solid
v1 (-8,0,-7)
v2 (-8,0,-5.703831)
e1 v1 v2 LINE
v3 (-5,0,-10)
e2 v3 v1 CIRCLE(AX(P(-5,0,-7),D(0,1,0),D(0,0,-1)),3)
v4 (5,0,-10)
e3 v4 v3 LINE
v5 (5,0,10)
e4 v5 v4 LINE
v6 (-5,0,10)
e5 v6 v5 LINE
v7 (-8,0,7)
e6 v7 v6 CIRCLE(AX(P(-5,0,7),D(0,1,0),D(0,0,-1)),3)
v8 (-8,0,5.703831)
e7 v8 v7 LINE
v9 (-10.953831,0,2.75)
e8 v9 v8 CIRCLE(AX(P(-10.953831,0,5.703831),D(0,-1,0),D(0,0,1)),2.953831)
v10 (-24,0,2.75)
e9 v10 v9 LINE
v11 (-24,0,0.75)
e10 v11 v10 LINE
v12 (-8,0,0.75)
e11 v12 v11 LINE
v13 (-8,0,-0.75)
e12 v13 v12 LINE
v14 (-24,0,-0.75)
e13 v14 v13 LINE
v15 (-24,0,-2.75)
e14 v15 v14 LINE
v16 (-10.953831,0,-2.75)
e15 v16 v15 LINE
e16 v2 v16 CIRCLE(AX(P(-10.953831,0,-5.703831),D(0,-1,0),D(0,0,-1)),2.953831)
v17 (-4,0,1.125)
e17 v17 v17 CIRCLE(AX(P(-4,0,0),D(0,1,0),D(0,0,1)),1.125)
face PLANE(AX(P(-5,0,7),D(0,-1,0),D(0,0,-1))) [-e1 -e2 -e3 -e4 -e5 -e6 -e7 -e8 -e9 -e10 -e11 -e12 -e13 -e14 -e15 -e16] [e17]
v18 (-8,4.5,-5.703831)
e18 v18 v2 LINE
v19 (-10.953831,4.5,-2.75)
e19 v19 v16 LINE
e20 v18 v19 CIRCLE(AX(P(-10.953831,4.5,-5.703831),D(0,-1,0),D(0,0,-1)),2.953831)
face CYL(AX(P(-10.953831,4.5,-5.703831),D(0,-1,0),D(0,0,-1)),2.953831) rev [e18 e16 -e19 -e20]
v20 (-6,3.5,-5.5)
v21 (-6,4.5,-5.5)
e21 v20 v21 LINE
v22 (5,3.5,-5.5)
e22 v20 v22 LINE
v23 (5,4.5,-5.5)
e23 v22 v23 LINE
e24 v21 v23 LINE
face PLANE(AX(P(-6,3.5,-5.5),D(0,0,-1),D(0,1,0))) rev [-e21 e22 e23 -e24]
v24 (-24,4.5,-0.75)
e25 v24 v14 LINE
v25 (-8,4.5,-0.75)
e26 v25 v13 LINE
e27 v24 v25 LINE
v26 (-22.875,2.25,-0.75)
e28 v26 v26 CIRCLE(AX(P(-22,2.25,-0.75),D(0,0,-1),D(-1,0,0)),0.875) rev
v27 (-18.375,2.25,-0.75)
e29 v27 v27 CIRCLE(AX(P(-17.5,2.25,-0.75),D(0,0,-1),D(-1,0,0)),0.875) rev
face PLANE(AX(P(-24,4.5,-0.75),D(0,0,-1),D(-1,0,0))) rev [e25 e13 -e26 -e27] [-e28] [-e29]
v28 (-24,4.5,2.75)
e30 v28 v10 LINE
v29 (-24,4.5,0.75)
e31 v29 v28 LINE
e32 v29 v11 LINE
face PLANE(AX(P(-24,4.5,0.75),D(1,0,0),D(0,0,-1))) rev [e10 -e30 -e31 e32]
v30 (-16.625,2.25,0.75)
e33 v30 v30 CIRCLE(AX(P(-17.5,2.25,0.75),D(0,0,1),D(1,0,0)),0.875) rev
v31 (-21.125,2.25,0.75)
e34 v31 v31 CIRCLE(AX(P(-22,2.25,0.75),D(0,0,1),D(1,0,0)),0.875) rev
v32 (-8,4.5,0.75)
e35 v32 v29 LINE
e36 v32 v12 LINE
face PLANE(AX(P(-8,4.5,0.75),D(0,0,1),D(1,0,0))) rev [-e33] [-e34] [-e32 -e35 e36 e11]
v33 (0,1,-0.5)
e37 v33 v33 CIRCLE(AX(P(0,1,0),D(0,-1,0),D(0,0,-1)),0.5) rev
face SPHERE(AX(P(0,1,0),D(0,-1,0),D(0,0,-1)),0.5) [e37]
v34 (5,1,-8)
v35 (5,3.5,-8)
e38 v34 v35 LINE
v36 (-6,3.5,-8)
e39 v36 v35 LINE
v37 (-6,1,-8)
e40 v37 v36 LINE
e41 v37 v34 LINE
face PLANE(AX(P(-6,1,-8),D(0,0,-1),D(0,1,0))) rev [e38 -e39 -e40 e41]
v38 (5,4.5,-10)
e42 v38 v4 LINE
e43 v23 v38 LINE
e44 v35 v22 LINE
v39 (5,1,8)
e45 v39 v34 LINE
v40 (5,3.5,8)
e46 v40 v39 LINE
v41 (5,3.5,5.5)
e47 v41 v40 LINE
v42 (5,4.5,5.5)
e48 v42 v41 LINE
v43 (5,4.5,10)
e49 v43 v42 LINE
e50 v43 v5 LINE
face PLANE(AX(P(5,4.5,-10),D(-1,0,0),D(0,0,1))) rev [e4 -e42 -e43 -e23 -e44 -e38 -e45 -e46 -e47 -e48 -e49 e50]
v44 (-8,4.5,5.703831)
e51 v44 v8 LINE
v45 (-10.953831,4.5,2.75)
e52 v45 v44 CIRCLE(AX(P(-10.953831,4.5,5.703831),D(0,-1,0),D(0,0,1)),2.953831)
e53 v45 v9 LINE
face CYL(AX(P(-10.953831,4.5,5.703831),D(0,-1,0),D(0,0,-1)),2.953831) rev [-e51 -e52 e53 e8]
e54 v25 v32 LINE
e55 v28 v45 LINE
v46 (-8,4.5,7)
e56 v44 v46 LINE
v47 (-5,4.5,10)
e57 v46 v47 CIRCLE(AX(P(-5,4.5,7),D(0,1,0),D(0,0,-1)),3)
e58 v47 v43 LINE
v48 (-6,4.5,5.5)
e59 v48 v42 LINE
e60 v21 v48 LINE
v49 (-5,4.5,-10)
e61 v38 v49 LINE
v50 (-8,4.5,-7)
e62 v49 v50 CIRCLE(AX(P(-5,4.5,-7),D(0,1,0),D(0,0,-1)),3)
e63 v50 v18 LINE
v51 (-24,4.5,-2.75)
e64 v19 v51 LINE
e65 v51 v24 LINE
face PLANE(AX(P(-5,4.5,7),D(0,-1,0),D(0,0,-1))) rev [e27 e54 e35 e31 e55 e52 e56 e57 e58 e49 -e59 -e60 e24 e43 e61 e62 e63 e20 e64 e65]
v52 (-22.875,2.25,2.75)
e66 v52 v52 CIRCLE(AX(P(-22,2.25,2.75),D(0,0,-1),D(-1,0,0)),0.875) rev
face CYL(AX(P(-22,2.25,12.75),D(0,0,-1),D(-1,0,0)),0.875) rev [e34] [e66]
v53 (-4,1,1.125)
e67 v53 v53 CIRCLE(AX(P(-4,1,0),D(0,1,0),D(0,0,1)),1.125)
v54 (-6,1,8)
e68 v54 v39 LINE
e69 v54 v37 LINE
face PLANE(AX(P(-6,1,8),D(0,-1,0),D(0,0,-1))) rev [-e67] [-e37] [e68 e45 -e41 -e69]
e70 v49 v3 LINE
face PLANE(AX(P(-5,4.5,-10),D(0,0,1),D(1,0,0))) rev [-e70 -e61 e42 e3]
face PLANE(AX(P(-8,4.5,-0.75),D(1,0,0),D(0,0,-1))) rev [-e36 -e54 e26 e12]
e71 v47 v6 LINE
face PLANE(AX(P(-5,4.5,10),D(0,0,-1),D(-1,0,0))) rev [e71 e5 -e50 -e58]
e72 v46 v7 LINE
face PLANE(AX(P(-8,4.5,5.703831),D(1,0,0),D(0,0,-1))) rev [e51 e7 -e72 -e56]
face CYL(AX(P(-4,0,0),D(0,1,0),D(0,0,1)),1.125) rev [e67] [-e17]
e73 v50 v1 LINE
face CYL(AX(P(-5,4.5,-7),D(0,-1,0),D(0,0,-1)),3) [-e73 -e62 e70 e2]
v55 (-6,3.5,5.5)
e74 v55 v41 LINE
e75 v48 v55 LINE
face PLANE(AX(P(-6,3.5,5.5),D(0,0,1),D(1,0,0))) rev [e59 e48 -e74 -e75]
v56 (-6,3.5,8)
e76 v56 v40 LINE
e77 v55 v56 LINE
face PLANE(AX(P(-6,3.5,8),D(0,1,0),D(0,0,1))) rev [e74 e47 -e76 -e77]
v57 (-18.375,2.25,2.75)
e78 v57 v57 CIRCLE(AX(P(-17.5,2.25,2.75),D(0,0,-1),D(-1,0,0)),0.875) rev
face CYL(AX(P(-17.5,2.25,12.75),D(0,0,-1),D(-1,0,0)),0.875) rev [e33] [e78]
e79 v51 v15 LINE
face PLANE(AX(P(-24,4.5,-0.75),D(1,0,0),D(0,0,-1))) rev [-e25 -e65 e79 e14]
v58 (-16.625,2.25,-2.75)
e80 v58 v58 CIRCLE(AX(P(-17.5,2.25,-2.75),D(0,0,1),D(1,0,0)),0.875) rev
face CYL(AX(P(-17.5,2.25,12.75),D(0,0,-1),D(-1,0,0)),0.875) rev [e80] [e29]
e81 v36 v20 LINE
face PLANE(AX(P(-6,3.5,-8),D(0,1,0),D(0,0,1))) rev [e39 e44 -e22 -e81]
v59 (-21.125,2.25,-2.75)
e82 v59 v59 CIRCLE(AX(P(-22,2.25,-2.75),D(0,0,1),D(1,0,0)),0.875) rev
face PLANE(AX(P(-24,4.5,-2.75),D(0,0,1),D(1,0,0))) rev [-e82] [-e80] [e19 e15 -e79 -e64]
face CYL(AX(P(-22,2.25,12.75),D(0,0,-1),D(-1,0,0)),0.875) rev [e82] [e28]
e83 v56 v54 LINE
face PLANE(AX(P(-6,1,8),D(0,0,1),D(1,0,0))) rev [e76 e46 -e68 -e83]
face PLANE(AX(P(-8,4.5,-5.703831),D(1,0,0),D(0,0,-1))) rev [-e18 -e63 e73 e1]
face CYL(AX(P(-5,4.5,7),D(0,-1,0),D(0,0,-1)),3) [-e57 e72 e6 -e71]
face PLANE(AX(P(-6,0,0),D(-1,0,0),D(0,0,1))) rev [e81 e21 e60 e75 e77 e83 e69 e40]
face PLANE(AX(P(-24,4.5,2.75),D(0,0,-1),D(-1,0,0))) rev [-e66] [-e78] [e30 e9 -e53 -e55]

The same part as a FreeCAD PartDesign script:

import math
import FreeCAD as App
import Part
import Sketcher

V = App.Vector
Q = App.Units.Quantity

doc = App.newDocument("Part")
body = doc.addObject("PartDesign::Body", "Body")

# Sketch on XZ plane
sketch1 = body.newObject("Sketcher::SketchObject", "Sketch")
sketch1.AttachmentSupport = (doc.getObject("XZ_Plane"), [""])
sketch1.MapMode = "FlatFace"
sketch1.addGeometry(Part.LineSegment(V(-5, 10, 0), V(5, 10, 0)), False)
sketch1.addGeometry(Part.LineSegment(V(5, 10, 0), V(5, -10, 0)), False)
sketch1.addGeometry(Part.LineSegment(V(5, -10, 0), V(-5, -10, 0)), False)
sketch1.addGeometry(Part.ArcOfCircle(Part.Circle(V(-5, -7, 0), V(0, 0, 1), 3), math.radians(180), math.radians(270)), False)
sketch1.addGeometry(Part.LineSegment(V(-8, -7, 0), V(-8, -5.7, 0)), False)
sketch1.addGeometry(Part.ArcOfCircle(Part.Circle(V(-11, -5.7, 0), V(0, 0, 1), 3), math.radians(0), math.radians(90)), False)
sketch1.addGeometry(Part.LineSegment(V(-11, -2.8, 0), V(-24, -2.8, 0)), False)
sketch1.addGeometry(Part.LineSegment(V(-24, -2.8, 0), V(-24, -0.8, 0)), False)
sketch1.addGeometry(Part.LineSegment(V(-24, -0.8, 0), V(-8, -0.8, 0)), False)
sketch1.addGeometry(Part.LineSegment(V(-8, -0.8, 0), V(-8, 0.8, 0)), False)
sketch1.addGeometry(Part.LineSegment(V(-8, 0.8, 0), V(-24, 0.8, 0)), False)
sketch1.addGeometry(Part.LineSegment(V(-24, 0.8, 0), V(-24, 2.8, 0)), False)
sketch1.addGeometry(Part.LineSegment(V(-24, 2.8, 0), V(-11, 2.8, 0)), False)
sketch1.addGeometry(Part.ArcOfCircle(Part.Circle(V(-11, 5.7, 0), V(0, 0, 1), 3), math.radians(-90), math.radians(0)), False)
sketch1.addGeometry(Part.LineSegment(V(-8, 5.7, 0), V(-8, 7, 0)), False)
sketch1.addGeometry(Part.ArcOfCircle(Part.Circle(V(-5, 7, 0), V(0, 0, 1), 3), math.radians(90), math.radians(180)), False)
sketch1.addConstraint(Sketcher.Constraint("Coincident", 0, 2, 1, 1))
sketch1.addConstraint(Sketcher.Constraint("Coincident", 1, 2, 2, 1))
sketch1.addConstraint(Sketcher.Constraint("Tangent", 2, 2, 3, 2))
sketch1.addConstraint(Sketcher.Constraint("Tangent", 3, 1, 4, 1))
sketch1.addConstraint(Sketcher.Constraint("Tangent", 4, 2, 5, 1))
sketch1.addConstraint(Sketcher.Constraint("Tangent", 5, 2, 6, 1))
sketch1.addConstraint(Sketcher.Constraint("Coincident", 6, 2, 7, 1))
sketch1.addConstraint(Sketcher.Constraint("Coincident", 7, 2, 8, 1))
sketch1.addConstraint(Sketcher.Constraint("Coincident", 8, 2, 9, 1))
sketch1.addConstraint(Sketcher.Constraint("Coincident", 9, 2, 10, 1))
sketch1.addConstraint(Sketcher.Constraint("Coincident", 10, 2, 11, 1))
sketch1.addConstraint(Sketcher.Constraint("Coincident", 11, 2, 12, 1))
sketch1.addConstraint(Sketcher.Constraint("Tangent", 12, 2, 13, 1))
sketch1.addConstraint(Sketcher.Constraint("Tangent", 13, 2, 14, 1))
sketch1.addConstraint(Sketcher.Constraint("Tangent", 14, 2, 15, 2))
sketch1.addConstraint(Sketcher.Constraint("Tangent", 15, 1, 0, 1))
sketch1.addConstraint(Sketcher.Constraint("Horizontal", 0))
sketch1.addConstraint(Sketcher.Constraint("Vertical", 1))
sketch1.addConstraint(Sketcher.Constraint("Horizontal", 2))
sketch1.addConstraint(Sketcher.Constraint("Vertical", 4))
sketch1.addConstraint(Sketcher.Constraint("Horizontal", 6))
sketch1.addConstraint(Sketcher.Constraint("Vertical", 7))
sketch1.addConstraint(Sketcher.Constraint("Horizontal", 8))
sketch1.addConstraint(Sketcher.Constraint("Vertical", 9))
sketch1.addConstraint(Sketcher.Constraint("Horizontal", 10))
sketch1.addConstraint(Sketcher.Constraint("Vertical", 11))
sketch1.addConstraint(Sketcher.Constraint("Horizontal", 12))
sketch1.addConstraint(Sketcher.Constraint("Vertical", 14))
sketch1.addConstraint(Sketcher.Constraint("Equal", 5, 13))
sketch1.addConstraint(Sketcher.Constraint("Equal", 3, 15))
sketch1.addConstraint(Sketcher.Constraint("Symmetric", 0, 2, 2, 2, -1, 1))
sketch1.addConstraint(Sketcher.Constraint("Symmetric", 5, 3, 13, 3, -1))
sketch1.addConstraint(Sketcher.Constraint("Symmetric", 7, 2, 10, 2, -1))
sketch1.addConstraint(Sketcher.Constraint("Vertical", 4, 2, 8, 2))
sketch1.addConstraint(Sketcher.Constraint("Radius", 3, Q("3 mm")))
sketch1.addConstraint(Sketcher.Constraint("DistanceX", 0, 1, 0, 2, Q("10 mm")))
sketch1.addConstraint(Sketcher.Constraint("DistanceX", 8, 1, 8, 2, Q("16 mm")))
sketch1.addConstraint(Sketcher.Constraint("DistanceY", 1, 2, 1, 1, Q("20 mm")))
sketch1.addConstraint(Sketcher.Constraint("DistanceY", 7, 1, 7, 2, Q("2 mm")))
sketch1.addConstraint(Sketcher.Constraint("DistanceY", 9, 1, 9, 2, Q("1.5 mm")))
sketch1.addConstraint(Sketcher.Constraint("Radius", 5, Q("2.953831 mm")))
pad1 = body.newObject("PartDesign::Pad", "Pad")
pad1.Profile = sketch1
pad1.Length = 4.5
pad1.Reversed = True

# Sketch on XY plane
sketch2 = body.newObject("Sketcher::SketchObject", "Sketch001")
sketch2.AttachmentSupport = (doc.getObject("XY_Plane"), [""])
sketch2.MapMode = "FlatFace"
sketch2.AttachmentOffset = App.Placement(V(0, 0, 2.75), App.Rotation())
sketch2.addGeometry(Part.Circle(V(-22, 2.2, 0), V(0, 0, 1), 0.9), False)
sketch2.addGeometry(Part.Circle(V(-17.5, 2.2, 0), V(0, 0, 1), 0.9), False)
sketch2.addConstraint(Sketcher.Constraint("Equal", 0, 1))
sketch2.addConstraint(Sketcher.Constraint("Horizontal", 0, 3, 1, 3))
sketch2.addConstraint(Sketcher.Constraint("Diameter", 0, Q("1.75 mm")))
sketch2.addConstraint(Sketcher.Constraint("DistanceX", 0, 3, -1, 1, Q("22 mm")))
sketch2.addConstraint(Sketcher.Constraint("DistanceX", 1, 3, -1, 1, Q("17.5 mm")))
sketch2.addConstraint(Sketcher.Constraint("DistanceY", -1, 1, 0, 3, Q("2.25 mm")))
pocket1 = body.newObject("PartDesign::Pocket", "Pocket")
pocket1.Profile = sketch2
pocket1.Type = "ThroughAll"
pocket1.Midplane = True

# Sketch on YZ plane
sketch3 = body.newObject("Sketcher::SketchObject", "Sketch002")
sketch3.AttachmentSupport = (doc.getObject("YZ_Plane"), [""])
sketch3.MapMode = "FlatFace"
sketch3.AttachmentOffset = App.Placement(V(0, 0, 5), App.Rotation())
sketch3.addGeometry(Part.LineSegment(V(1, 8, 0), V(1, -8, 0)), False)
sketch3.addGeometry(Part.LineSegment(V(1, -8, 0), V(3.5, -8, 0)), False)
sketch3.addGeometry(Part.LineSegment(V(3.5, -8, 0), V(3.5, -5.5, 0)), False)
sketch3.addGeometry(Part.LineSegment(V(3.5, -5.5, 0), V(4.5, -5.5, 0)), False)
sketch3.addGeometry(Part.LineSegment(V(4.5, -5.5, 0), V(4.5, 5.5, 0)), False)
sketch3.addGeometry(Part.LineSegment(V(4.5, 5.5, 0), V(3.5, 5.5, 0)), False)
sketch3.addGeometry(Part.LineSegment(V(3.5, 5.5, 0), V(3.5, 8, 0)), False)
sketch3.addGeometry(Part.LineSegment(V(3.5, 8, 0), V(1, 8, 0)), False)
sketch3.addConstraint(Sketcher.Constraint("Coincident", 0, 2, 1, 1))
sketch3.addConstraint(Sketcher.Constraint("Coincident", 1, 2, 2, 1))
sketch3.addConstraint(Sketcher.Constraint("Coincident", 2, 2, 3, 1))
sketch3.addConstraint(Sketcher.Constraint("Coincident", 3, 2, 4, 1))
sketch3.addConstraint(Sketcher.Constraint("Coincident", 4, 2, 5, 1))
sketch3.addConstraint(Sketcher.Constraint("Coincident", 5, 2, 6, 1))
sketch3.addConstraint(Sketcher.Constraint("Coincident", 6, 2, 7, 1))
sketch3.addConstraint(Sketcher.Constraint("Coincident", 7, 2, 0, 1))
sketch3.addConstraint(Sketcher.Constraint("Vertical", 0))
sketch3.addConstraint(Sketcher.Constraint("Horizontal", 1))
sketch3.addConstraint(Sketcher.Constraint("Vertical", 2))
sketch3.addConstraint(Sketcher.Constraint("Horizontal", 3))
sketch3.addConstraint(Sketcher.Constraint("Vertical", 4))
sketch3.addConstraint(Sketcher.Constraint("Horizontal", 5))
sketch3.addConstraint(Sketcher.Constraint("Vertical", 6))
sketch3.addConstraint(Sketcher.Constraint("Horizontal", 7))
sketch3.addConstraint(Sketcher.Constraint("Symmetric", 2, 2, 5, 2, -1))
sketch3.addConstraint(Sketcher.Constraint("Equal", 7, 2))
sketch3.addConstraint(Sketcher.Constraint("Equal", 2, 6))
sketch3.addConstraint(Sketcher.Constraint("DistanceX", 3, 1, 3, 2, Q("1 mm")))
sketch3.addConstraint(Sketcher.Constraint("DistanceY", 0, 2, 0, 1, Q("16 mm")))
sketch3.addConstraint(Sketcher.Constraint("DistanceY", 4, 1, 4, 2, Q("11 mm")))
sketch3.addConstraint(Sketcher.Constraint("DistanceX", -1, 1, 0, 2, Q("1 mm")))
pocket2 = body.newObject("PartDesign::Pocket", "Pocket001")
pocket2.Profile = sketch3
pocket2.Length = 11

# Sketch on XZ plane
sketch4 = body.newObject("Sketcher::SketchObject", "Sketch003")
sketch4.AttachmentSupport = (doc.getObject("XZ_Plane"), [""])
sketch4.MapMode = "FlatFace"
sketch4.AttachmentOffset = App.Placement(V(0, 0, -1), App.Rotation())
sketch4.addGeometry(Part.Circle(V(-4, 0, 0), V(0, 0, 1), 1.1), False)
sketch4.addConstraint(Sketcher.Constraint("PointOnObject", 0, 3, -1))
sketch4.addConstraint(Sketcher.Constraint("Diameter", 0, Q("2.25 mm")))
sketch4.addConstraint(Sketcher.Constraint("DistanceX", 0, 3, -1, 1, Q("4 mm")))
pocket3 = body.newObject("PartDesign::Pocket", "Pocket002")
pocket3.Profile = sketch4
pocket3.Type = "ThroughAll"
pocket3.Reversed = True

# Sketch on YZ plane
sketch5 = body.newObject("Sketcher::SketchObject", "Sketch004")
sketch5.AttachmentSupport = (doc.getObject("YZ_Plane"), [""])
sketch5.MapMode = "FlatFace"
sketch5.addGeometry(Part.LineSegment(V(1, 0.5, 0), V(1, -0.5, 0)), False)
sketch5.addGeometry(Part.ArcOfCircle(Part.Circle(V(1, 0, 0), V(0, 0, 1), 0.5), math.radians(-90), math.radians(90)), False)
sketch5.addGeometry(Part.LineSegment(V(1, 0.5, 0), V(1, -0.5, 0)), True)  # axis
sketch5.addConstraint(Sketcher.Constraint("Coincident", 0, 1, 1, 2))
sketch5.addConstraint(Sketcher.Constraint("Coincident", 1, 1, 0, 2))
sketch5.addConstraint(Sketcher.Constraint("Vertical", 0))
sketch5.addConstraint(Sketcher.Constraint("Vertical", 2))
sketch5.addConstraint(Sketcher.Constraint("Coincident", 2, 1, 0, 1))
sketch5.addConstraint(Sketcher.Constraint("PointOnObject", 1, 3, -1))
sketch5.addConstraint(Sketcher.Constraint("Vertical", 1, 3, 0, 1))
sketch5.addConstraint(Sketcher.Constraint("Equal", 0, 2))
sketch5.addConstraint(Sketcher.Constraint("Radius", 1, Q("0.5 mm")))
sketch5.addConstraint(Sketcher.Constraint("DistanceX", -1, 1, 1, 3, Q("1 mm")))
revolution = body.newObject("PartDesign::Revolution", "Revolution")
revolution.Profile = sketch5
revolution.ReferenceAxis = (sketch5, ["Axis0"])
revolution.Angle = 360

doc.recompute()
